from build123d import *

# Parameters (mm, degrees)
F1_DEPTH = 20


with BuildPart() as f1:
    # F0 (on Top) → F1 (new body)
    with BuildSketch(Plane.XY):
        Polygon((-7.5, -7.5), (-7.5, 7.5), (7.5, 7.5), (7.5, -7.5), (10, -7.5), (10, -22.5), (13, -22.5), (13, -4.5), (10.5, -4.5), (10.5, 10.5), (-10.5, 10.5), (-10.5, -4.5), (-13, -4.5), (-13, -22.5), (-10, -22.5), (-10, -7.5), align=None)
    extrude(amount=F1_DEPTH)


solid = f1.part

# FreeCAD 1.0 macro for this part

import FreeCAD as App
import Part
import Sketcher
Q = App.Units.Quantity

doc = App.newDocument("Part")
body = doc.addObject("PartDesign::Body", "Body")

# Sketch on XY plane
sketch1 = doc.addObject("Sketcher::SketchObject", "Sketch")
body.addObject(sketch1)
sketch1.AttachmentSupport = (doc.XY_Plane, [""])
sketch1.MapMode = "FlatFace"
sketch1.addGeometry([
    Part.LineSegment(App.Vector(-7.5, -7.5, 0), App.Vector(-7.5, 7.5, 0)),  # 0
    Part.LineSegment(App.Vector(-7.5, 7.5, 0), App.Vector(7.5, 7.5, 0)),  # 1
    Part.LineSegment(App.Vector(7.5, 7.5, 0), App.Vector(7.5, -7.5, 0)),  # 2
    Part.LineSegment(App.Vector(7.5, -7.5, 0), App.Vector(10, -7.5, 0)),  # 3
    Part.LineSegment(App.Vector(10, -7.5, 0), App.Vector(10, -22.5, 0)),  # 4
    Part.LineSegment(App.Vector(10, -22.5, 0), App.Vector(13, -22.5, 0)),  # 5
    Part.LineSegment(App.Vector(13, -22.5, 0), App.Vector(13, -4.5, 0)),  # 6
    Part.LineSegment(App.Vector(13, -4.5, 0), App.Vector(10.5, -4.5, 0)),  # 7
    Part.LineSegment(App.Vector(10.5, -4.5, 0), App.Vector(10.5, 10.5, 0)),  # 8
    Part.LineSegment(App.Vector(10.5, 10.5, 0), App.Vector(-10.5, 10.5, 0)),  # 9
    Part.LineSegment(App.Vector(-10.5, 10.5, 0), App.Vector(-10.5, -4.5, 0)),  # 10
    Part.LineSegment(App.Vector(-10.5, -4.5, 0), App.Vector(-13, -4.5, 0)),  # 11
    Part.LineSegment(App.Vector(-13, -4.5, 0), App.Vector(-13, -22.5, 0)),  # 12
    Part.LineSegment(App.Vector(-13, -22.5, 0), App.Vector(-10, -22.5, 0)),  # 13
    Part.LineSegment(App.Vector(-10, -22.5, 0), App.Vector(-10, -7.5, 0)),  # 14
    Part.LineSegment(App.Vector(-10, -7.5, 0), App.Vector(-7.5, -7.5, 0)),  # 15
], False)
sketch1.addConstraint([
    Sketcher.Constraint("Coincident", 0, 2, 1, 1),
    Sketcher.Constraint("Coincident", 1, 2, 2, 1),
    Sketcher.Constraint("Coincident", 2, 2, 3, 1),
    Sketcher.Constraint("Coincident", 3, 2, 4, 1),
    Sketcher.Constraint("Coincident", 4, 2, 5, 1),
    Sketcher.Constraint("Coincident", 5, 2, 6, 1),
    Sketcher.Constraint("Coincident", 6, 2, 7, 1),
    Sketcher.Constraint("Coincident", 7, 2, 8, 1),
    Sketcher.Constraint("Coincident", 8, 2, 9, 1),
    Sketcher.Constraint("Coincident", 9, 2, 10, 1),
    Sketcher.Constraint("Coincident", 10, 2, 11, 1),
    Sketcher.Constraint("Coincident", 11, 2, 12, 1),
    Sketcher.Constraint("Coincident", 12, 2, 13, 1),
    Sketcher.Constraint("Coincident", 13, 2, 14, 1),
    Sketcher.Constraint("Coincident", 14, 2, 15, 1),
    Sketcher.Constraint("Coincident", 15, 2, 0, 1),
    Sketcher.Constraint("Vertical", 0),
    Sketcher.Constraint("Horizontal", 1),
    Sketcher.Constraint("Vertical", 2),
    Sketcher.Constraint("Horizontal", 3),
    Sketcher.Constraint("Vertical", 4),
    Sketcher.Constraint("Horizontal", 5),
    Sketcher.Constraint("Vertical", 6),
    Sketcher.Constraint("Horizontal", 7),
    Sketcher.Constraint("Vertical", 8),
    Sketcher.Constraint("Horizontal", 9),
    Sketcher.Constraint("Vertical", 10),
    Sketcher.Constraint("Horizontal", 11),
    Sketcher.Constraint("Vertical", 12),
    Sketcher.Constraint("Horizontal", 13),
    Sketcher.Constraint("Vertical", 14),
    Sketcher.Constraint("Horizontal", 15),
    Sketcher.Constraint("Symmetric", 0, 2, 2, 2, -1, 1),
    Sketcher.Constraint("Symmetric", 7, 2, 10, 2, -2),
    Sketcher.Constraint("Symmetric", 5, 2, 12, 2, -2),
    Sketcher.Constraint("Symmetric", 3, 2, 14, 2, -2),
    Sketcher.Constraint("Equal", 3, 7),
    Sketcher.Constraint("Equal", 1, 0),
    Sketcher.Constraint("Equal", 2, 4),
    Sketcher.Constraint("Equal", 4, 8),
    Sketcher.Constraint("DistanceX", 1, 1, 1, 2, Q("15 mm")),
    Sketcher.Constraint("DistanceX", 5, 1, 5, 2, Q("3 mm")),
    Sketcher.Constraint("DistanceY", 6, 1, 6, 2, Q("18 mm")),
    Sketcher.Constraint("DistanceX", 3, 1, 3, 2, Q("2.5 mm")),
])
pad1 = doc.addObject("PartDesign::Pad", "Pad")
body.addObject(pad1)
pad1.Profile = sketch1
pad1.Length = 20

doc.recompute()
